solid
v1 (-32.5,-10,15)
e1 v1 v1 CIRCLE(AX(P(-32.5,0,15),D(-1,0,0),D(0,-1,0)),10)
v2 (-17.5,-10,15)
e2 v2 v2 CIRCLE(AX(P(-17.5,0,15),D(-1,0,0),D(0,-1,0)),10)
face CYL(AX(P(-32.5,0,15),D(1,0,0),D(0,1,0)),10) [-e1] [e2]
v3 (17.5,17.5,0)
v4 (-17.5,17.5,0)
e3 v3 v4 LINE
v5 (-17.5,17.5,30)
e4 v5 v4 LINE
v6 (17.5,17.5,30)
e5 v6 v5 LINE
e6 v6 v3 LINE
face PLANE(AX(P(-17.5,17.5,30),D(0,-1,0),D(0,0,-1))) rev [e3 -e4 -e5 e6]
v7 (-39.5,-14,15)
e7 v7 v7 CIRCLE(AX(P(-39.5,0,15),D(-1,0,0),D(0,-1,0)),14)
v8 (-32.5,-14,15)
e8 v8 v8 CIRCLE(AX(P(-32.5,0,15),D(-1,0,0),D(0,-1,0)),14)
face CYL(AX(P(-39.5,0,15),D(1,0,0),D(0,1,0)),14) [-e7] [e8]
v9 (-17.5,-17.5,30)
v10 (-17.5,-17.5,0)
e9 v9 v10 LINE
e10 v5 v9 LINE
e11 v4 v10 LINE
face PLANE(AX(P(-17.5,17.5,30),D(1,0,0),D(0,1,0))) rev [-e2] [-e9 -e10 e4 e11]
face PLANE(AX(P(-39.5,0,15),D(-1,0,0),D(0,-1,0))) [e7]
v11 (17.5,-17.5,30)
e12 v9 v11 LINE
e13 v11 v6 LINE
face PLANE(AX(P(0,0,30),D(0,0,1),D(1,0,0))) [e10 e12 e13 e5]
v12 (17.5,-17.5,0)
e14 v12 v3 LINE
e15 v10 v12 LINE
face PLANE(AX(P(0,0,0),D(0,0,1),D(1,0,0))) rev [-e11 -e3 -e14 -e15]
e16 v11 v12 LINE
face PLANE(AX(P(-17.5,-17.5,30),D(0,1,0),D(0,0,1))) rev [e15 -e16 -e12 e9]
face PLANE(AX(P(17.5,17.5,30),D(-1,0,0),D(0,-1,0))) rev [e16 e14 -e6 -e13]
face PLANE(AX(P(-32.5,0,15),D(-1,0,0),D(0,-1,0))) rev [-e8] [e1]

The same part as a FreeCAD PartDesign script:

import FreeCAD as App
import Part
import Sketcher

doc = App.newDocument("Part")
body = doc.addObject("PartDesign::Body", "Body")

# Sketch on XY plane
sketch1 = body.newObject("Sketcher::SketchObject", "Sketch")
sketch1.AttachmentSupport = (doc.getObject("XY_Plane"), [""])
sketch1.MapMode = "FlatFace"
sketch1.addGeometry([
    Part.LineSegment(App.Vector(-18, 18, 0), App.Vector(-18, -18, 0)),
    Part.LineSegment(App.Vector(-18, -18, 0), App.Vector(18, -18, 0)),
    Part.LineSegment(App.Vector(18, -18, 0), App.Vector(18, 18, 0)),
    Part.LineSegment(App.Vector(18, 18, 0), App.Vector(-18, 18, 0)),
], False)
sketch1.addConstraint([
    Sketcher.Constraint("Coincident", 0, 2, 1, 1),
    Sketcher.Constraint("Coincident", 1, 2, 2, 1),
    Sketcher.Constraint("Coincident", 2, 2, 3, 1),
    Sketcher.Constraint("Coincident", 3, 2, 0, 1),
    Sketcher.Constraint("Vertical", 0),
    Sketcher.Constraint("Horizontal", 1),
    Sketcher.Constraint("Vertical", 2),
    Sketcher.Constraint("Horizontal", 3),
    Sketcher.Constraint("Symmetric", 0, 2, 2, 2, -1, 1),
    Sketcher.Constraint("Equal", 3, 0),
    Sketcher.Constraint("DistanceX", 1, 1, 1, 2, 35.0),
])
pad1 = body.newObject("PartDesign::Pad", "Pad")
pad1.Profile = sketch1
pad1.Length = 30

# Sketch on YZ plane
sketch2 = body.newObject("Sketcher::SketchObject", "Sketch001")
sketch2.AttachmentSupport = (doc.getObject("YZ_Plane"), [""])
sketch2.MapMode = "FlatFace"
sketch2.AttachmentOffset = App.Placement(App.Vector(0, 0, -17.5), App.Rotation())
sketch2.addGeometry(Part.Circle(App.Vector(0, 15, 0), App.Vector(0, 0, 1), 10), False)
sketch2.addConstraint([
    Sketcher.Constraint("PointOnObject", 0, 3, -2),
    Sketcher.Constraint("Diameter", 0, 20.0),
    Sketcher.Constraint("DistanceY", -1, 1, 0, 3, 15.0),
])
pad2 = body.newObject("PartDesign::Pad", "Pad001")
pad2.Profile = sketch2
pad2.Length = 15
pad2.Reversed = True

# Sketch on YZ plane
sketch3 = body.newObject("Sketcher::SketchObject", "Sketch002")
sketch3.AttachmentSupport = (doc.getObject("YZ_Plane"), [""])
sketch3.MapMode = "FlatFace"
sketch3.AttachmentOffset = App.Placement(App.Vector(0, 0, -32.5), App.Rotation())
sketch3.addGeometry(Part.Circle(App.Vector(0, 15, 0), App.Vector(0, 0, 1), 14), False)
sketch3.addConstraint([
    Sketcher.Constraint("PointOnObject", 0, 3, -2),
    Sketcher.Constraint("Diameter", 0, 28.0),
    Sketcher.Constraint("DistanceY", -1, 1, 0, 3, 15.0),
])
pad3 = body.newObject("PartDesign::Pad", "Pad002")
pad3.Profile = sketch3
pad3.Length = 7
pad3.Reversed = True

doc.recompute()
